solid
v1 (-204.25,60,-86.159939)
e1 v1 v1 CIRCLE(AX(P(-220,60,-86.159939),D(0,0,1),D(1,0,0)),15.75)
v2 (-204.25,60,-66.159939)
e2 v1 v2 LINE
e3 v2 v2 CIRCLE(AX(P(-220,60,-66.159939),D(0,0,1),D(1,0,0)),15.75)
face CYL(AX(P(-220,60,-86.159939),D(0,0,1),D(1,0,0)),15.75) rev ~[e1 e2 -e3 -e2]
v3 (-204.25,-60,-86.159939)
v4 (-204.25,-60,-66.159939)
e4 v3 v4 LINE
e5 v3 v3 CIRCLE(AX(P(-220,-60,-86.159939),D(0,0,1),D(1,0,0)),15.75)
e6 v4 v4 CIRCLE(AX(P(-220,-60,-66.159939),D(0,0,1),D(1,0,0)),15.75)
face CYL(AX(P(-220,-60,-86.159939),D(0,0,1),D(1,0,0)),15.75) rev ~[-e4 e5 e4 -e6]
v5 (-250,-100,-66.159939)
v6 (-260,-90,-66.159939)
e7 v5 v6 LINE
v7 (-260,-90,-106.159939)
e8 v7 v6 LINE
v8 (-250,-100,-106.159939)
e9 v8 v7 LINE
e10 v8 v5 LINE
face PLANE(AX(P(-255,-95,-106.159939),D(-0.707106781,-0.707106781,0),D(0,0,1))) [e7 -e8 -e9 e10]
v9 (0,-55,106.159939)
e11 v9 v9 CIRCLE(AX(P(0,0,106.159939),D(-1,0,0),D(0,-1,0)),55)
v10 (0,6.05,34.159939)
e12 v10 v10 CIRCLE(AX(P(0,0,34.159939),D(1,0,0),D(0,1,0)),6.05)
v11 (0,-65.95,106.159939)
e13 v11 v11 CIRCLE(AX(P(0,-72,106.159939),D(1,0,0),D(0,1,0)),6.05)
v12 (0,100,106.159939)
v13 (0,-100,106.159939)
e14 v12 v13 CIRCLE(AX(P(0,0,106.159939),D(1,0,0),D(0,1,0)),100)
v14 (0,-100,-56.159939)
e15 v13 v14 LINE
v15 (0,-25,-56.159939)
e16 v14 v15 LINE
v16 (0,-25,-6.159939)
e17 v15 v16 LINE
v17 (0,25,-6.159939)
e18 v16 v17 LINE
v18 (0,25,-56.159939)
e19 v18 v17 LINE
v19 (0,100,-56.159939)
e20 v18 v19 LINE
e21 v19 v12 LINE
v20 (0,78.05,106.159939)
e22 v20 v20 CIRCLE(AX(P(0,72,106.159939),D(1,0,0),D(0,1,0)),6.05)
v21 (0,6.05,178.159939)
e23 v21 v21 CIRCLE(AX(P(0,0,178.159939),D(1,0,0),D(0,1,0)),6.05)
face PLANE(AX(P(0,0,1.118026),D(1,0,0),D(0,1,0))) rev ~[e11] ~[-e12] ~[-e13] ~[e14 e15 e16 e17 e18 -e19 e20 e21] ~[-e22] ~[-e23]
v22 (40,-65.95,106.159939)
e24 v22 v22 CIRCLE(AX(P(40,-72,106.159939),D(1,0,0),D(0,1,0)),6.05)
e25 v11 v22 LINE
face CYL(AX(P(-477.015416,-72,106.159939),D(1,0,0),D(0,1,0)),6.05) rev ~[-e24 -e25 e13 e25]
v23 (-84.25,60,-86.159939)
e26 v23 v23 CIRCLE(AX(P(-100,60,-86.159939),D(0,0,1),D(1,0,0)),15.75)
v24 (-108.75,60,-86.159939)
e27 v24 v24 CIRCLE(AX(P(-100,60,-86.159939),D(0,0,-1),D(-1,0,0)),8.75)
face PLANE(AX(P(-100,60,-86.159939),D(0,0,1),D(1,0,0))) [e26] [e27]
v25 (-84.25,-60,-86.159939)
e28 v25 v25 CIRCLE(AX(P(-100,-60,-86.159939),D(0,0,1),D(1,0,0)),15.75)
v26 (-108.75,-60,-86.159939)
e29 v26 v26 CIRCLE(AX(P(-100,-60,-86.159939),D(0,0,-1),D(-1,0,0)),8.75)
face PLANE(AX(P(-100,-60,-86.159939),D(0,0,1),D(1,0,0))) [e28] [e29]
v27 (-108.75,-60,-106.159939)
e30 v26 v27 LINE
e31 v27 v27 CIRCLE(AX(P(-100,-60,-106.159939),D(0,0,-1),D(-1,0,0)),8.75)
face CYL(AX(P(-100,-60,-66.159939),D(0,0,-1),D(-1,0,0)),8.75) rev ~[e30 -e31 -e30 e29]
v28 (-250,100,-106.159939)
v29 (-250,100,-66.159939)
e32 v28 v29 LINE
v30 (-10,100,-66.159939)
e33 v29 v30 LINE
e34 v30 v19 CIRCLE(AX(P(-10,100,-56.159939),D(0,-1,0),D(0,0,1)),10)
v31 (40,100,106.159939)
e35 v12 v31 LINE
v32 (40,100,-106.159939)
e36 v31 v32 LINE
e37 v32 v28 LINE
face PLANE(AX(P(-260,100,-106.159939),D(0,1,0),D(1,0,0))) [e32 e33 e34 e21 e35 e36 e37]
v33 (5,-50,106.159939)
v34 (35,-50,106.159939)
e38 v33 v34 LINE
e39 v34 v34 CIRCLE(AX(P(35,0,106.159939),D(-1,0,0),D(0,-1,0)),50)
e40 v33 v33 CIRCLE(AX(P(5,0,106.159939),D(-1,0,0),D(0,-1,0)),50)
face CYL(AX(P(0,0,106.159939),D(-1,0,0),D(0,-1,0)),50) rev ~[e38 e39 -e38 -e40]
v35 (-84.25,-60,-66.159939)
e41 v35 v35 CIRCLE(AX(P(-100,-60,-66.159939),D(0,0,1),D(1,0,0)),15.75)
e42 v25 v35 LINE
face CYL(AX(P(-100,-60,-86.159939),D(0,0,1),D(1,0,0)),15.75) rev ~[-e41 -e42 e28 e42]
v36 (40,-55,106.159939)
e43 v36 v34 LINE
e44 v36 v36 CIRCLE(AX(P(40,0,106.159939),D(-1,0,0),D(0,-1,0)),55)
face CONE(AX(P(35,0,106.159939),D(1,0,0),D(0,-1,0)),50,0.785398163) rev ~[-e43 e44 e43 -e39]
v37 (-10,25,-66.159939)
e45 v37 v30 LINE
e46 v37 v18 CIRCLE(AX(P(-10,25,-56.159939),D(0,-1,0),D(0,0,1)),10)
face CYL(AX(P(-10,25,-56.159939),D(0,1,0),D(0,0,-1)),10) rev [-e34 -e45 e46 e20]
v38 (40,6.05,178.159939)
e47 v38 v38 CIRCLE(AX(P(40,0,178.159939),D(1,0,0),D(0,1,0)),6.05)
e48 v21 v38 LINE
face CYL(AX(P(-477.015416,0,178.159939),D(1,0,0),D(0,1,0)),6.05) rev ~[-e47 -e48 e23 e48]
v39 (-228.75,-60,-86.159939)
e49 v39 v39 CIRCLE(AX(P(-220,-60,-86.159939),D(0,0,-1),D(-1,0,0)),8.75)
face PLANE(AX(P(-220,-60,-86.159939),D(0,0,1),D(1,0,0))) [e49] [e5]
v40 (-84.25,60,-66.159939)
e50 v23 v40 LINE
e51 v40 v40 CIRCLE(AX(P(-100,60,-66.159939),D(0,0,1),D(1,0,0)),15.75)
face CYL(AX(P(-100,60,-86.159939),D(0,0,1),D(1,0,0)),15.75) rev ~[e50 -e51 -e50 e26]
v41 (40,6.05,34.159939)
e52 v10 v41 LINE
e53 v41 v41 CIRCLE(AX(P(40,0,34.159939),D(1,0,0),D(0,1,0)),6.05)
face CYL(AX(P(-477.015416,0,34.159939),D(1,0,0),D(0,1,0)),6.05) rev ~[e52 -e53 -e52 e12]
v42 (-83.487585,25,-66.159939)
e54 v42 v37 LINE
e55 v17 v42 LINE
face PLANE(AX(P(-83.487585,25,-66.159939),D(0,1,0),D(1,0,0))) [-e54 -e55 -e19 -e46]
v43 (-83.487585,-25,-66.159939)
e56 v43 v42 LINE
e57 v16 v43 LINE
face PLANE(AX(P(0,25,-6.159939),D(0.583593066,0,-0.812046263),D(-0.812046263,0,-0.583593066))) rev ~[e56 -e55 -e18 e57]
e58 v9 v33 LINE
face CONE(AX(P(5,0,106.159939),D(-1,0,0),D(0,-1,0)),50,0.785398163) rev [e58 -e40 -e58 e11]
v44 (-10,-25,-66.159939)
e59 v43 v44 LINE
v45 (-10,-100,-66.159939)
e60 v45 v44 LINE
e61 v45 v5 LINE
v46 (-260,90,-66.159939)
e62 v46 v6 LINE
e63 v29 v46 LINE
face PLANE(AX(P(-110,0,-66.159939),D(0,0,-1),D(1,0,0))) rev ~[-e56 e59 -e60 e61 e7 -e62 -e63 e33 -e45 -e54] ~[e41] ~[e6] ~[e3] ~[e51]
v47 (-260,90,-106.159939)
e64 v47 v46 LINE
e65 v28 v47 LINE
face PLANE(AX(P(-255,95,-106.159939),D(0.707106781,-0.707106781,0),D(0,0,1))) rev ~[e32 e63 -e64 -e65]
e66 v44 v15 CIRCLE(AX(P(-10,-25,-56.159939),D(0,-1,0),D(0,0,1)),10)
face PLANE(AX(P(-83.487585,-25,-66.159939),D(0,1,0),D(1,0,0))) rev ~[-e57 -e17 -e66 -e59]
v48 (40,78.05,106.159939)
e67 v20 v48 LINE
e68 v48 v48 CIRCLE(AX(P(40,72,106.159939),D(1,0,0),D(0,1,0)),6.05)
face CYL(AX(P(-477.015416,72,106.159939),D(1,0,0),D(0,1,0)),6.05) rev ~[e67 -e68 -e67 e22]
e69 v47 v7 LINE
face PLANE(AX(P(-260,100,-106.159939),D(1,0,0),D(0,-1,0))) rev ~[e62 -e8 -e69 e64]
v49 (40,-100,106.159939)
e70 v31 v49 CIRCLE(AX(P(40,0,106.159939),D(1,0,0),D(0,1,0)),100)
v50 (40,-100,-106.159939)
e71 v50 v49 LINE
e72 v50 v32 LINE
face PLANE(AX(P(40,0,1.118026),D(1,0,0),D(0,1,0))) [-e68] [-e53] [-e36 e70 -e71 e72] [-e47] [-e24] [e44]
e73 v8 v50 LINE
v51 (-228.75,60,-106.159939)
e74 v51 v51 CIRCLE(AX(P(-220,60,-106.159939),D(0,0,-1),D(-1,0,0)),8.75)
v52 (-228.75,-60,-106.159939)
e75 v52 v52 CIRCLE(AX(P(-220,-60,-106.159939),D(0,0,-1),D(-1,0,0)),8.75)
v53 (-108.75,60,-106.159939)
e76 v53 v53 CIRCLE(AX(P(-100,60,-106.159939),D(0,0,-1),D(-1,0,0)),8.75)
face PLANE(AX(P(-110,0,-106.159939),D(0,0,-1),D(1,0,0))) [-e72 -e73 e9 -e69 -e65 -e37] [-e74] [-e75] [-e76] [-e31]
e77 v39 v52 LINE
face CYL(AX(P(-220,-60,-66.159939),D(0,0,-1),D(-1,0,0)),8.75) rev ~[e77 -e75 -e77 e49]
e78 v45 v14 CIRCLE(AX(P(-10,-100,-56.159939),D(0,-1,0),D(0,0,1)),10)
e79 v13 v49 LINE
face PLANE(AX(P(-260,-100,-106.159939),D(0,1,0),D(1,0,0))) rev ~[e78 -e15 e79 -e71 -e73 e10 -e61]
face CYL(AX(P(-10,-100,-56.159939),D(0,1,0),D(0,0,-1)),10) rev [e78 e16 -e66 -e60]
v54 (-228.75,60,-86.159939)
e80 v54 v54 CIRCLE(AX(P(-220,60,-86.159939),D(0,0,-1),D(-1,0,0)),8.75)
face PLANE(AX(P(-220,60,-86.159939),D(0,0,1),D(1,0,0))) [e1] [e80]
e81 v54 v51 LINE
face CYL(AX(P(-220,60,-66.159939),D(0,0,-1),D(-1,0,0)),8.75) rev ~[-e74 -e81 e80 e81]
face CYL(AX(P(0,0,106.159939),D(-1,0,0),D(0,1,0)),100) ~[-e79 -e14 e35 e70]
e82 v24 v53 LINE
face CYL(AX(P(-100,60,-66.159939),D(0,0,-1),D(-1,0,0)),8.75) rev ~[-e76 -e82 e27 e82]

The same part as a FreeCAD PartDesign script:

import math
import FreeCAD as App
import Part
import Sketcher

V = App.Vector


def edges_at(feature, points):
    """Names of the edges that pass closest to the given points."""
    edges = feature.Shape.Edges
    near = lambda p: min(range(len(edges)), key=lambda i: edges[i].distToShape(Part.Vertex(*p))[0])
    return sorted({f"Edge{near(p) + 1}" for p in points})

doc = App.newDocument("Part")
params = doc.addObject("Spreadsheet::Sheet", "Params")
for row, (alias, value) in enumerate([
    ("sketch1_diameter", "100 mm"),
    ("sketch1_radius", "100 mm"),
    ("pad1_length", "40 mm"),
    ("sketch2_width", "300 mm"),
    ("sketch2_height", "200 mm"),
    ("pad2_length", "40 mm"),
    ("sketch3_height", "50 mm"),
    ("pad3_length", "60 mm"),
    ("sketch4_height", "60 mm"),
    ("fillet_radius", "10 mm"),
    ("sketch5_diameter", "12.1 mm"),
    ("hole_diameter", "12.1 mm"),
    ("chamfer_size", "5 mm"),
    ("sketch6_diameter", "17.5 mm"),
    ("hole2_diameter", "17.5 mm"),
    ("hole2_cbore_diameter", "31.5 mm"),
    ("hole2_cbore_depth", "20 mm"),
    ("chamfer2_size", "10 mm"),
], start=1):
    params.set(f"A{row}", alias)
    params.set(f"B{row}", "=" + value)
    params.setAlias(f"B{row}", alias)

body = doc.addObject("PartDesign::Body", "Body")

sketch1 = doc.addObject("Sketcher::SketchObject", "Sketch")
body.addObject(sketch1)
sketch1.AttachmentSupport = (doc.YZ_Plane, [""])
sketch1.MapMode = "FlatFace"
sketch1.addGeometry(Part.LineSegment(V(-100, 106, 0), V(-100, -106, 0)), False)
sketch1.addGeometry(Part.LineSegment(V(-100, -106, 0), V(100, -106, 0)), False)
sketch1.addGeometry(Part.LineSegment(V(100, -106, 0), V(100, 106, 0)), False)
sketch1.addGeometry(Part.ArcOfCircle(Part.Circle(V(0, 106, 0), V(0, 0, 1), 100), math.radians(0), math.radians(180)), False)
sketch1.addGeometry(Part.Circle(V(0, 106, 0), V(0, 0, 1), 50), False)
sketch1.addConstraint(Sketcher.Constraint("Coincident", 0, 2, 1, 1))
sketch1.addConstraint(Sketcher.Constraint("Coincident", 1, 2, 2, 1))
sketch1.addConstraint(Sketcher.Constraint("Tangent", 2, 2, 3, 1))
sketch1.addConstraint(Sketcher.Constraint("Tangent", 3, 2, 0, 1))
sketch1.addConstraint(Sketcher.Constraint("Vertical", 0))
sketch1.addConstraint(Sketcher.Constraint("Horizontal", 1))
sketch1.addConstraint(Sketcher.Constraint("Vertical", 2))
sketch1.addConstraint(Sketcher.Constraint("Coincident", 4, 3, 3, 3))
sketch1.addConstraint(Sketcher.Constraint("Symmetric", 0, 2, 2, 2, -1, 1))
sketch1.addConstraint(Sketcher.Constraint("Diameter", 4, 100.0))
sketch1.addConstraint(Sketcher.Constraint("Radius", 3, 100.0))
sketch1.addConstraint(Sketcher.Constraint("DistanceY", 0, 2, 0, 1, 212.319879))
sketch1.setExpression("Constraints[9]", "Params.sketch1_diameter")
sketch1.setExpression("Constraints[10]", "Params.sketch1_radius")
pad1 = doc.addObject("PartDesign::Pad", "Pad")
body.addObject(pad1)
pad1.Profile = sketch1
pad1.setExpression("Length", "Params.pad1_length")

sketch2 = doc.addObject("Sketcher::SketchObject", "Sketch001")
body.addObject(sketch2)
sketch2.AttachmentSupport = (doc.XY_Plane, [""])
sketch2.MapMode = "FlatFace"
sketch2.AttachmentOffset = App.Placement(V(0, 0, -106.159939), App.Rotation())
sketch2.addGeometry(Part.LineSegment(V(-260, -100, 0), V(-260, 100, 0)), False)
sketch2.addGeometry(Part.LineSegment(V(-260, 100, 0), V(40, 100, 0)), False)
sketch2.addGeometry(Part.LineSegment(V(40, 100, 0), V(40, -100, 0)), False)
sketch2.addGeometry(Part.LineSegment(V(40, -100, 0), V(-260, -100, 0)), False)
sketch2.addConstraint(Sketcher.Constraint("Coincident", 0, 2, 1, 1))
sketch2.addConstraint(Sketcher.Constraint("Coincident", 1, 2, 2, 1))
sketch2.addConstraint(Sketcher.Constraint("Coincident", 2, 2, 3, 1))
sketch2.addConstraint(Sketcher.Constraint("Coincident", 3, 2, 0, 1))
sketch2.addConstraint(Sketcher.Constraint("Vertical", 0))
sketch2.addConstraint(Sketcher.Constraint("Horizontal", 1))
sketch2.addConstraint(Sketcher.Constraint("Vertical", 2))
sketch2.addConstraint(Sketcher.Constraint("Horizontal", 3))
sketch2.addConstraint(Sketcher.Constraint("DistanceX", 1, 1, 1, 2, 300.0))
sketch2.addConstraint(Sketcher.Constraint("DistanceY", 0, 1, 0, 2, 200.0))
sketch2.addConstraint(Sketcher.Constraint("DistanceX", 0, 2, -1, 1, 260.0))
sketch2.addConstraint(Sketcher.Constraint("DistanceY", -1, 1, 0, 2, 100.0))
sketch2.setExpression("Constraints[8]", "Params.sketch2_width")
sketch2.setExpression("Constraints[9]", "Params.sketch2_height")
pad2 = doc.addObject("PartDesign::Pad", "Pad001")
body.addObject(pad2)
pad2.Profile = sketch2
pad2.setExpression("Length", "Params.pad2_length")

sketch3 = doc.addObject("Sketcher::SketchObject", "Sketch002")
body.addObject(sketch3)
sketch3.AttachmentSupport = (doc.XY_Plane, [""])
sketch3.MapMode = "FlatFace"
sketch3.AttachmentOffset = App.Placement(V(0, 0, -66.159939), App.Rotation())
sketch3.addGeometry(Part.LineSegment(V(-83, 25, 0), V(-83, -25, 0)), False)
sketch3.addGeometry(Part.LineSegment(V(-83, -25, 0), V(0, -25, 0)), False)
sketch3.addGeometry(Part.LineSegment(V(0, -25, 0), V(0, 25, 0)), False)
sketch3.addGeometry(Part.LineSegment(V(0, 25, 0), V(-83, 25, 0)), False)
sketch3.addConstraint(Sketcher.Constraint("Coincident", 0, 2, 1, 1))
sketch3.addConstraint(Sketcher.Constraint("Coincident", 1, 2, 2, 1))
sketch3.addConstraint(Sketcher.Constraint("Coincident", 2, 2, 3, 1))
sketch3.addConstraint(Sketcher.Constraint("Coincident", 3, 2, 0, 1))
sketch3.addConstraint(Sketcher.Constraint("Vertical", 0))
sketch3.addConstraint(Sketcher.Constraint("Horizontal", 1))
sketch3.addConstraint(Sketcher.Constraint("Vertical", 2))
sketch3.addConstraint(Sketcher.Constraint("Horizontal", 3))
sketch3.addConstraint(Sketcher.Constraint("Symmetric", 1, 2, 2, 2, -1, 1))
sketch3.addConstraint(Sketcher.Constraint("DistanceY", 0, 2, 0, 1, 50.0))
sketch3.addConstraint(Sketcher.Constraint("DistanceX", 1, 1, 1, 2, 83.487585))
sketch3.setExpression("Constraints[9]", "Params.sketch3_height")
pad3 = doc.addObject("PartDesign::Pad", "Pad002")
body.addObject(pad3)
pad3.Profile = sketch3
pad3.setExpression("Length", "Params.pad3_length")

sketch4 = doc.addObject("Sketcher::SketchObject", "Sketch003")
body.addObject(sketch4)
sketch4.AttachmentSupport = (doc.XZ_Plane, [""])
sketch4.MapMode = "FlatFace"
sketch4.AttachmentOffset = App.Placement(V(0, 0, -25), App.Rotation())
sketch4.addGeometry(Part.LineSegment(V(-83, -6, 0), V(0, -6, 0)), False)
sketch4.addGeometry(Part.LineSegment(V(0, -6, 0), V(-83, -66, 0)), False)
sketch4.addGeometry(Part.LineSegment(V(-83, -66, 0), V(-83, -6, 0)), False)
sketch4.addConstraint(Sketcher.Constraint("Coincident", 0, 2, 1, 1))
sketch4.addConstraint(Sketcher.Constraint("Coincident", 1, 2, 2, 1))
sketch4.addConstraint(Sketcher.Constraint("Coincident", 2, 2, 0, 1))
sketch4.addConstraint(Sketcher.Constraint("Horizontal", 0))
sketch4.addConstraint(Sketcher.Constraint("Vertical", 2))
sketch4.addConstraint(Sketcher.Constraint("PointOnObject", 0, 2, -2))
sketch4.addConstraint(Sketcher.Constraint("DistanceY", 2, 1, 2, 2, 60.0))
sketch4.addConstraint(Sketcher.Constraint("DistanceX", 0, 1, 0, 2, 83.487585))
sketch4.addConstraint(Sketcher.Constraint("DistanceY", 0, 2, -1, 1, 6.159939))
sketch4.setExpression("Constraints[6]", "Params.sketch4_height")
pocket1 = doc.addObject("PartDesign::Pocket", "Pocket")
body.addObject(pocket1)
pocket1.Profile = sketch4
pocket1.Type = "ThroughAll"
pocket1.Reversed = True
doc.recompute()

fillet = doc.addObject("PartDesign::Fillet", "Fillet")
body.addObject(fillet)
fillet.Base = (pocket1, edges_at(pocket1, [(0, 62.5, -66.16), (0, -62.5, -66.16)]))
fillet.setExpression("Radius", "Params.fillet_radius")

sketch5 = doc.addObject("Sketcher::SketchObject", "Sketch004")
body.addObject(sketch5)
sketch5.AttachmentSupport = (doc.YZ_Plane, [""])
sketch5.MapMode = "FlatFace"
sketch5.addGeometry(Part.Circle(V(0, 178, 0), V(0, 0, 1), 6), False)
sketch5.addGeometry(Part.Circle(V(72, 106, 0), V(0, 0, 1), 6), False)
sketch5.addGeometry(Part.Circle(V(0, 34, 0), V(0, 0, 1), 6), False)
sketch5.addGeometry(Part.Circle(V(-72, 106, 0), V(0, 0, 1), 6), False)
sketch5.addConstraint(Sketcher.Constraint("Equal", 0, 1))
sketch5.addConstraint(Sketcher.Constraint("Equal", 1, 2))
sketch5.addConstraint(Sketcher.Constraint("Equal", 2, 3))
sketch5.addConstraint(Sketcher.Constraint("Symmetric", 1, 3, 3, 3, -2))
sketch5.addConstraint(Sketcher.Constraint("PointOnObject", 0, 3, -2))
sketch5.addConstraint(Sketcher.Constraint("PointOnObject", 2, 3, -2))
sketch5.addConstraint(Sketcher.Constraint("Diameter", 0, 12.1))
sketch5.addConstraint(Sketcher.Constraint("DistanceX", -1, 1, 1, 3, 72.0))
sketch5.addConstraint(Sketcher.Constraint("DistanceY", 1, 3, 0, 3, 72.0))
sketch5.addConstraint(Sketcher.Constraint("DistanceY", 2, 3, 1, 3, 72.0))
sketch5.addConstraint(Sketcher.Constraint("DistanceY", -1, 1, 0, 3, 178.159939))
sketch5.setExpression("Constraints[6]", "Params.sketch5_diameter")
doc.recompute()
hole = doc.addObject("PartDesign::Hole", "Hole")
body.addObject(hole)
hole.Profile = sketch5
hole.ThreadType = "None"
hole.setExpression("Diameter", "Params.hole_diameter")
hole.DepthType = "ThroughAll"
hole.Reversed = True
doc.recompute()

chamfer = doc.addObject("PartDesign::Chamfer", "Chamfer")
body.addObject(chamfer)
chamfer.Base = (hole, edges_at(hole, [(0, 50, 106.16), (40, 50, 106.16)]))
chamfer.setExpression("Size", "Params.chamfer_size")

sketch6 = doc.addObject("Sketcher::SketchObject", "Sketch005")
body.addObject(sketch6)
sketch6.AttachmentSupport = (doc.XY_Plane, [""])
sketch6.MapMode = "FlatFace"
sketch6.AttachmentOffset = App.Placement(V(0, 0, -66.159939), App.Rotation())
sketch6.addGeometry(Part.Circle(V(-220, 60, 0), V(0, 0, 1), 9), False)
sketch6.addGeometry(Part.Circle(V(-220, -60, 0), V(0, 0, 1), 9), False)
sketch6.addGeometry(Part.Circle(V(-100, 60, 0), V(0, 0, 1), 9), False)
sketch6.addGeometry(Part.Circle(V(-100, -60, 0), V(0, 0, 1), 9), False)
sketch6.addConstraint(Sketcher.Constraint("Equal", 0, 1))
sketch6.addConstraint(Sketcher.Constraint("Equal", 1, 2))
sketch6.addConstraint(Sketcher.Constraint("Equal", 2, 3))
sketch6.addConstraint(Sketcher.Constraint("Symmetric", 0, 3, 1, 3, -1))
sketch6.addConstraint(Sketcher.Constraint("Symmetric", 2, 3, 3, 3, -1))
sketch6.addConstraint(Sketcher.Constraint("Horizontal", 0, 3, 2, 3))
sketch6.addConstraint(Sketcher.Constraint("Diameter", 0, 17.5))
sketch6.addConstraint(Sketcher.Constraint("DistanceX", 0, 3, -1, 1, 220.0))
sketch6.addConstraint(Sketcher.Constraint("DistanceY", -1, 1, 0, 3, 60.0))
sketch6.addConstraint(Sketcher.Constraint("DistanceX", 2, 3, -1, 1, 100.0))
sketch6.setExpression("Constraints[6]", "Params.sketch6_diameter")
doc.recompute()
hole2 = doc.addObject("PartDesign::Hole", "Hole001")
body.addObject(hole2)
hole2.Profile = sketch6
hole2.ThreadType = "None"
hole2.setExpression("Diameter", "Params.hole2_diameter")
hole2.DepthType = "ThroughAll"
hole2.HoleCutType = "Counterbore"
hole2.setExpression("HoleCutDiameter", "Params.hole2_cbore_diameter")
hole2.setExpression("HoleCutDepth", "Params.hole2_cbore_depth")
doc.recompute()

chamfer2 = doc.addObject("PartDesign::Chamfer", "Chamfer001")
body.addObject(chamfer2)
chamfer2.Base = (hole2, edges_at(hole2, [(-260, 100, -86.16), (-260, -100, -86.16)]))
chamfer2.setExpression("Size", "Params.chamfer2_size")

doc.recompute()
